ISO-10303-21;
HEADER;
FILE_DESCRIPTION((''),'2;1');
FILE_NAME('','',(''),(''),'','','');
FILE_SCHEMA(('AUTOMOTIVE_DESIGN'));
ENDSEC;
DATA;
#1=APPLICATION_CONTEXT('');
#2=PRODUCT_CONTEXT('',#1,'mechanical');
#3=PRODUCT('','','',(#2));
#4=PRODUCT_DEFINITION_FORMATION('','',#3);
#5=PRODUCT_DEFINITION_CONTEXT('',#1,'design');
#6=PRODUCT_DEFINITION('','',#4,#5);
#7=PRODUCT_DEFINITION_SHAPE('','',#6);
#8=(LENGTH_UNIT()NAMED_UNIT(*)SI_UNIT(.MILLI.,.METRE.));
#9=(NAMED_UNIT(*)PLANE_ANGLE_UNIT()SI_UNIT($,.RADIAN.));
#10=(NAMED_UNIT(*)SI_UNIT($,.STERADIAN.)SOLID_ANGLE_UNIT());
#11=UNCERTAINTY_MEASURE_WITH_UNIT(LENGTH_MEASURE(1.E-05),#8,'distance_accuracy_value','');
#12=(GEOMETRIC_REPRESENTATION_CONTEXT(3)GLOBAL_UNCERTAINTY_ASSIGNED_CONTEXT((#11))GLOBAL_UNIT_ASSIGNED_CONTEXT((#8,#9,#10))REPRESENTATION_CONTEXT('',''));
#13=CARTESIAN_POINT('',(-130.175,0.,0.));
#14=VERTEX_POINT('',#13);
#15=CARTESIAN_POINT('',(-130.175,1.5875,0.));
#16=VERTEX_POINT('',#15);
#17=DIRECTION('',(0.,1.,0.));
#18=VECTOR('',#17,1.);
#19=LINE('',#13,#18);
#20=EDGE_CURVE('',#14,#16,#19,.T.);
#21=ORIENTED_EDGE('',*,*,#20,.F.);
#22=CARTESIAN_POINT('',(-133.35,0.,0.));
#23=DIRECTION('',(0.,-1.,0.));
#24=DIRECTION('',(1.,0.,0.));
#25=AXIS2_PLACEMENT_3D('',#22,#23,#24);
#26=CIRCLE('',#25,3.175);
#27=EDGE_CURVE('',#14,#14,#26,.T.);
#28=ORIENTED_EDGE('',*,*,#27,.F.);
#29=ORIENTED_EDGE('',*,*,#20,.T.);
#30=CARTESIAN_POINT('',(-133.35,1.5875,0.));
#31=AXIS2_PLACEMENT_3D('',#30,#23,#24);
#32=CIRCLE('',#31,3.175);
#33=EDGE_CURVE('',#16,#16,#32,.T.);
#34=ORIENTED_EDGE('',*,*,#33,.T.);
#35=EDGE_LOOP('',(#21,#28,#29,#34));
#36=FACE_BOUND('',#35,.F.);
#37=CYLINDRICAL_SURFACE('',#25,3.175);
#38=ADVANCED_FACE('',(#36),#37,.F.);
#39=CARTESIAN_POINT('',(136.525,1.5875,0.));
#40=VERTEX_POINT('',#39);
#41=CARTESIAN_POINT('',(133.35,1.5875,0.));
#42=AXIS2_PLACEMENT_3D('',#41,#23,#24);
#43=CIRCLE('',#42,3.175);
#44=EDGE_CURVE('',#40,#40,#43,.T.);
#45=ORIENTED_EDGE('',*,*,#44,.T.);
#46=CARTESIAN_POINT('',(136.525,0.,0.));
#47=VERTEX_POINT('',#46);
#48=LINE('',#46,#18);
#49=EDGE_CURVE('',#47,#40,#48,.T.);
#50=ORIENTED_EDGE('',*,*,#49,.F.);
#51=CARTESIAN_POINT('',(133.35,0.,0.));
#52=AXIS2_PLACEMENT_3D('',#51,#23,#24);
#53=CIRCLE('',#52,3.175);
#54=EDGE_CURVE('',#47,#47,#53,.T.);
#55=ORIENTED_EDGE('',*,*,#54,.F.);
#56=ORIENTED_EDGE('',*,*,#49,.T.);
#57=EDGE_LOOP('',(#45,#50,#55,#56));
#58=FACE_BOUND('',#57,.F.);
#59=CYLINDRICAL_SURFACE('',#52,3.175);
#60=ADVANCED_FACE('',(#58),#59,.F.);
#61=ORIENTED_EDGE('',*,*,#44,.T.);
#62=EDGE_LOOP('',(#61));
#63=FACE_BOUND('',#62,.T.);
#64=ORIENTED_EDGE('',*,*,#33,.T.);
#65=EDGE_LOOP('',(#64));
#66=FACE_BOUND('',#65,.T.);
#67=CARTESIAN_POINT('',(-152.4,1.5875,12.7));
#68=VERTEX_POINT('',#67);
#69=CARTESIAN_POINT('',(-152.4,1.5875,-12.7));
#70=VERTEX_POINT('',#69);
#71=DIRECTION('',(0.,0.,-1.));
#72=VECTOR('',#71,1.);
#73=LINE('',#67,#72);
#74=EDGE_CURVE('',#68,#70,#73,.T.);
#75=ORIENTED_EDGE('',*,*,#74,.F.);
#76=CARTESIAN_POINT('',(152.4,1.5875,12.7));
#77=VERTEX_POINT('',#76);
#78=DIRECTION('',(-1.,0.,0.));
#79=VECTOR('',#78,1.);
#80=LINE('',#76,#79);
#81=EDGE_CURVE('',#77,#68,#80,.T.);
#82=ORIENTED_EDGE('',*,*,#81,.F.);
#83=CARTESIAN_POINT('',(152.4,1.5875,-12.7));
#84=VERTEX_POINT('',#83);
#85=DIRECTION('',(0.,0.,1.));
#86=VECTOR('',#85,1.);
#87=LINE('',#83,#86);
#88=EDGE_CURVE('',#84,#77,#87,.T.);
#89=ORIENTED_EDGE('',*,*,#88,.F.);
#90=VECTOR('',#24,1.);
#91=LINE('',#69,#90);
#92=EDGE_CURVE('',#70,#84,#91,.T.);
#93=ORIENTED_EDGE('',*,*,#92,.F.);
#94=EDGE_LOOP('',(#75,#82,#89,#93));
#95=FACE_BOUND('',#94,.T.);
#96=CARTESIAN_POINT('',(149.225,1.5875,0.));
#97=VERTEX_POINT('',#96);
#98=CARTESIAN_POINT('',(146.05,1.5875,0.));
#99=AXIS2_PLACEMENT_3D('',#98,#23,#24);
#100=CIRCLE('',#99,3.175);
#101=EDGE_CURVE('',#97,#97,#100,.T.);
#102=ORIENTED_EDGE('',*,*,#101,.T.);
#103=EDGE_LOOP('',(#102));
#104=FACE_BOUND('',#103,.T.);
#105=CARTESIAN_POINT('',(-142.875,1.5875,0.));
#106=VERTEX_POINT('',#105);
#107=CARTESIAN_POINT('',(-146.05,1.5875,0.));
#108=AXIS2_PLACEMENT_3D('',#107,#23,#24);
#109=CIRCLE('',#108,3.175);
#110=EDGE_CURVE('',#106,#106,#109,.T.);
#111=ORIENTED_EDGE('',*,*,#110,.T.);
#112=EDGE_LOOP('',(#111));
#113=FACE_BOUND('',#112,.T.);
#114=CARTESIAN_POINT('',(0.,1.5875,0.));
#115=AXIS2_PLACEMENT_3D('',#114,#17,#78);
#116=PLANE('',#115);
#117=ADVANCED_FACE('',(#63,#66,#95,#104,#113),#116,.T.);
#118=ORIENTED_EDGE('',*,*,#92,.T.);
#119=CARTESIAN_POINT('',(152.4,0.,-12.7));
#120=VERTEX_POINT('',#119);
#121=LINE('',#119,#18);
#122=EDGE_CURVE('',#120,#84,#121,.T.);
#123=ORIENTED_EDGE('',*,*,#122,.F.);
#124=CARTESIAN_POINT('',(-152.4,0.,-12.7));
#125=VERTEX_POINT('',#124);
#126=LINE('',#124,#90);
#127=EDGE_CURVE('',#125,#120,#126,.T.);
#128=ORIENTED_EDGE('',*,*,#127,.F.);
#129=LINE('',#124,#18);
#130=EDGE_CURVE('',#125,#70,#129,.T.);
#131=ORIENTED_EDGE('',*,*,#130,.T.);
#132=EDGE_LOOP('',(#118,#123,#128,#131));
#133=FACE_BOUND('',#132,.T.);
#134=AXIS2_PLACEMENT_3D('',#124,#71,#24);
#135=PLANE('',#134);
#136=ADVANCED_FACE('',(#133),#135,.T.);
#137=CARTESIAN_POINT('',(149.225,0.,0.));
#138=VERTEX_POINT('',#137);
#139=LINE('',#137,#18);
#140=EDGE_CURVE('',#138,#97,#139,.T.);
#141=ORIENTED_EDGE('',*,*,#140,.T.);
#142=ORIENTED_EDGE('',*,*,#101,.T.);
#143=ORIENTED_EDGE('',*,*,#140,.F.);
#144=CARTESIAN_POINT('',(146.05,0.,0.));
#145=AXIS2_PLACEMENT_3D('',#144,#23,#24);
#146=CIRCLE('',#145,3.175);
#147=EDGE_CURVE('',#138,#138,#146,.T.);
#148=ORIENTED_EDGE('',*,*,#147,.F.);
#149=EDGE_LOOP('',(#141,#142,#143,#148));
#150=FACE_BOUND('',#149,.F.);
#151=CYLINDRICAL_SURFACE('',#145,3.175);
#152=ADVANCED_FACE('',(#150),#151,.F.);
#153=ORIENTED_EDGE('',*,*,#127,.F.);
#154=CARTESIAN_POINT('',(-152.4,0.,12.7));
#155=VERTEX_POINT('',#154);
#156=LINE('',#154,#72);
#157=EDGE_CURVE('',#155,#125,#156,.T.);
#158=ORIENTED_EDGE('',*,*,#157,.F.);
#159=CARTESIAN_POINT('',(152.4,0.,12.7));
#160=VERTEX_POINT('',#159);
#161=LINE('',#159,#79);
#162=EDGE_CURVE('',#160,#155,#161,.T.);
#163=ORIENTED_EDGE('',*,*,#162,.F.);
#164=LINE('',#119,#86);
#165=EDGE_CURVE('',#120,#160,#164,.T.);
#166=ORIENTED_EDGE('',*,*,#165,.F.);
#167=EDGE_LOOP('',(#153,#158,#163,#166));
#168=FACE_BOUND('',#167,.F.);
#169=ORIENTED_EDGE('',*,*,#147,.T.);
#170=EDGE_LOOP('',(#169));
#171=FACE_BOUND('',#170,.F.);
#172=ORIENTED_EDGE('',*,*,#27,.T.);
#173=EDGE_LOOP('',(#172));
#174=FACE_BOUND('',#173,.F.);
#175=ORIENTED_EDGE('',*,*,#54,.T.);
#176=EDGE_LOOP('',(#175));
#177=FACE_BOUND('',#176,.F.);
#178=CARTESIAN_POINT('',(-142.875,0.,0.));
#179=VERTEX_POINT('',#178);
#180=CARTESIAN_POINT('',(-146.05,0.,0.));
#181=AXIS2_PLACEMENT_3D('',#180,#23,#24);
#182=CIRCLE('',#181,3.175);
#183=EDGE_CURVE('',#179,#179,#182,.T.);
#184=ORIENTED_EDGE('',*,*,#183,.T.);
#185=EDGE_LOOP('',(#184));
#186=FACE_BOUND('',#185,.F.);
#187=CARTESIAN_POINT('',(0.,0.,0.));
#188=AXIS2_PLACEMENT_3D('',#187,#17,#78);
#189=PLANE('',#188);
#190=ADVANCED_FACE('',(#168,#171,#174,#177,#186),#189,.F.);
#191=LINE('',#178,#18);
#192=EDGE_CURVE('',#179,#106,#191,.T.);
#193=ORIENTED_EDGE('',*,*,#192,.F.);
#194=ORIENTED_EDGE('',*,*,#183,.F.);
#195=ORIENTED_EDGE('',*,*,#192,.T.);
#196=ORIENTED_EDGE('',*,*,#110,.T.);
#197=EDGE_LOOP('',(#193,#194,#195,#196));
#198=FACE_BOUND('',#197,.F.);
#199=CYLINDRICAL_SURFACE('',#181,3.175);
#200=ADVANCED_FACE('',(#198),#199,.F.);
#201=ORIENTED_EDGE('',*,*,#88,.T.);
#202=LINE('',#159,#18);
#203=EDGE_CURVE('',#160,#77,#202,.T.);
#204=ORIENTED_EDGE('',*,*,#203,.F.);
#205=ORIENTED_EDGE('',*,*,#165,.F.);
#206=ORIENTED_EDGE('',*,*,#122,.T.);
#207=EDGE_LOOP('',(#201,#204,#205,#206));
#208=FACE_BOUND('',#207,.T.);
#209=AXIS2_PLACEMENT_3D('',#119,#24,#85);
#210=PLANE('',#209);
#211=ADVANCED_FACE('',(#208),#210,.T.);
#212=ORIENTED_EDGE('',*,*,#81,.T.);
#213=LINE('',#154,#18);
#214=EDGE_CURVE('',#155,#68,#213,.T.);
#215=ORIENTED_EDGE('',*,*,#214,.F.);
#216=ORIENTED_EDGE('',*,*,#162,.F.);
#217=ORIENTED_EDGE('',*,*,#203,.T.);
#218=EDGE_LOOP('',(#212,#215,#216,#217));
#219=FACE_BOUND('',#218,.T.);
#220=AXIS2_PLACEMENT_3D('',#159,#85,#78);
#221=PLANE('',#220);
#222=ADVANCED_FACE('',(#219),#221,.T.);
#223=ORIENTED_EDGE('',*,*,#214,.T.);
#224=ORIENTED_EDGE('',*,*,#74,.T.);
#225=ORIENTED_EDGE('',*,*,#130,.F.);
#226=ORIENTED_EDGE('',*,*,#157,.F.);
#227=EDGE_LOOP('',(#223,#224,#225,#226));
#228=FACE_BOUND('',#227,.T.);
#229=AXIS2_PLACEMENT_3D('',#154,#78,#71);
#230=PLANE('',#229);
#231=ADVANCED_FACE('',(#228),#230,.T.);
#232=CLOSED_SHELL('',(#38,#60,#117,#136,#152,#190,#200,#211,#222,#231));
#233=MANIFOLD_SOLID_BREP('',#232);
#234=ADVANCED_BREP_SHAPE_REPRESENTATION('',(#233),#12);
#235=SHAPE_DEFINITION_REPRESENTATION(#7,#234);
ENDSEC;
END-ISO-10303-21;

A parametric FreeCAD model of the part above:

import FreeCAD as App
import Part
import Sketcher
from FreeCAD import Vector
Q = App.Units.Quantity

doc = App.newDocument("Part")
body = doc.addObject("PartDesign::Body", "Body")

sketch1 = doc.addObject("Sketcher::SketchObject", "Sketch")
body.addObject(sketch1)
sketch1.AttachmentSupport = (doc.XZ_Plane, [""])
sketch1.MapMode = "FlatFace"
sketch1.addGeometry([
    Part.LineSegment(Vector(-152.4, 12.7, 0), Vector(152.4, 12.7, 0)),
    Part.LineSegment(Vector(152.4, 12.7, 0), Vector(152.4, -12.7, 0)),
    Part.LineSegment(Vector(152.4, -12.7, 0), Vector(-152.4, -12.7, 0)),
    Part.LineSegment(Vector(-152.4, -12.7, 0), Vector(-152.4, 12.7, 0)),
], False)
sketch1.addConstraint([
    Sketcher.Constraint("Coincident", 0, 2, 1, 1),
    Sketcher.Constraint("Coincident", 1, 2, 2, 1),
    Sketcher.Constraint("Coincident", 2, 2, 3, 1),
    Sketcher.Constraint("Coincident", 3, 2, 0, 1),
    Sketcher.Constraint("Horizontal", 0),
    Sketcher.Constraint("Vertical", 1),
    Sketcher.Constraint("Horizontal", 2),
    Sketcher.Constraint("Vertical", 3),
    Sketcher.Constraint("Symmetric", 0, 2, 2, 2, -1, 1),
    Sketcher.Constraint("DistanceX", 0, 1, 0, 2, Q("12 in")),
    Sketcher.Constraint("DistanceY", 1, 2, 1, 1, Q("1 in")),
])
pad1 = doc.addObject("PartDesign::Pad", "Pad")
body.addObject(pad1)
pad1.Profile = sketch1
pad1.Length = Q("0.0625 in")
pad1.Reversed = True

sketch2 = doc.addObject("Sketcher::SketchObject", "Sketch001")
body.addObject(sketch2)
sketch2.AttachmentSupport = (doc.XZ_Plane, [""])
sketch2.MapMode = "FlatFace"
sketch2.addGeometry([
    Part.Circle(Vector(146.05, 0, 0), Vector(0, 0, 1), 3.175),
    Part.Circle(Vector(133.35, 0, 0), Vector(0, 0, 1), 3.175),
    Part.Circle(Vector(-146.05, 0, 0), Vector(0, 0, 1), 3.175),
    Part.Circle(Vector(-133.35, 0, 0), Vector(0, 0, 1), 3.175),
], False)
sketch2.addConstraint([
    Sketcher.Constraint("Equal", 0, 1),
    Sketcher.Constraint("Equal", 1, 2),
    Sketcher.Constraint("Equal", 2, 3),
    Sketcher.Constraint("Symmetric", 0, 3, 2, 3, -1, 1),
    Sketcher.Constraint("Symmetric", 1, 3, 3, 3, -1, 1),
    Sketcher.Constraint("PointOnObject", 0, 3, -1),
    Sketcher.Constraint("PointOnObject", 1, 3, -1),
    Sketcher.Constraint("Diameter", 0, Q("0.25 in")),
    Sketcher.Constraint("DistanceX", 1, 3, 0, 3, Q("0.5 in")),
    Sketcher.Constraint("DistanceX", 2, 3, 1, 3, Q("11 in")),
])
pocket1 = doc.addObject("PartDesign::Pocket", "Pocket")
body.addObject(pocket1)
pocket1.Profile = sketch2
pocket1.Length = Q("0.0625 in")

doc.recompute()
